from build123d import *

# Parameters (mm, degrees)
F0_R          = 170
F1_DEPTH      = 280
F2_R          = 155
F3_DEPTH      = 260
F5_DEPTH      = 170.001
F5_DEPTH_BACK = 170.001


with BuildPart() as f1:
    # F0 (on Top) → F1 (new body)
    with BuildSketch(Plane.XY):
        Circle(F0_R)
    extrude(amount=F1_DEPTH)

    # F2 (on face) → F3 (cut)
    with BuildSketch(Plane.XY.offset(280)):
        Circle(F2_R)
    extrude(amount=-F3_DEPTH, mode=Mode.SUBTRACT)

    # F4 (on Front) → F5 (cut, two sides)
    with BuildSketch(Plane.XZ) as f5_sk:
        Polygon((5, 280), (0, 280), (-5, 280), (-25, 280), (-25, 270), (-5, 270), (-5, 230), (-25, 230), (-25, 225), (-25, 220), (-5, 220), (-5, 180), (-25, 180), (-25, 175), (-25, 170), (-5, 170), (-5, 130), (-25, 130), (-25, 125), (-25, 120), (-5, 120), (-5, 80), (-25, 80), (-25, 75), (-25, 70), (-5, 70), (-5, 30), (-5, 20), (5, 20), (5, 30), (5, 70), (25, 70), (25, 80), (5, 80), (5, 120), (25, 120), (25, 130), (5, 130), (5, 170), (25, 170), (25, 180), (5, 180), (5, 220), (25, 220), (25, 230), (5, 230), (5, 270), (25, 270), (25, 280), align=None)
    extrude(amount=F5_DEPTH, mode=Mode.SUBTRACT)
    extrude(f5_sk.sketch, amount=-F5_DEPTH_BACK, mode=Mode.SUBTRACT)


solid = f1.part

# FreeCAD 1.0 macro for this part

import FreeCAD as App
import Part
import Sketcher

doc = App.newDocument("Part")
body = doc.addObject("PartDesign::Body", "Body")

# Sketch on XY plane
sketch1 = body.newObject("Sketcher::SketchObject", "Sketch")
sketch1.AttachmentSupport = (doc.getObject("XY_Plane"), [""])
sketch1.MapMode = "FlatFace"
sketch1.addGeometry(Part.Circle(App.Vector(0, 0, 0), App.Vector(0, 0, 1), 170), False)
sketch1.addConstraint([
    Sketcher.Constraint("Coincident", 0, 3, -1, 1),
    Sketcher.Constraint("Diameter", 0, 340.0),
])
pad1 = body.newObject("PartDesign::Pad", "Pad")
pad1.Profile = sketch1
pad1.Length = 280

# Sketch on XY plane
sketch2 = body.newObject("Sketcher::SketchObject", "Sketch001")
sketch2.AttachmentSupport = (doc.getObject("XY_Plane"), [""])
sketch2.MapMode = "FlatFace"
sketch2.AttachmentOffset = App.Placement(App.Vector(0, 0, 280), App.Rotation())
sketch2.addGeometry(Part.Circle(App.Vector(0, 0, 0), App.Vector(0, 0, 1), 155), False)
sketch2.addConstraint([
    Sketcher.Constraint("Coincident", 0, 3, -1, 1),
    Sketcher.Constraint("Diameter", 0, 310.0),
])
pocket1 = body.newObject("PartDesign::Pocket", "Pocket")
pocket1.Profile = sketch2
pocket1.Length = 260

# Sketch on XZ plane
sketch3 = body.newObject("Sketcher::SketchObject", "Sketch002")
sketch3.AttachmentSupport = (doc.getObject("XZ_Plane"), [""])
sketch3.MapMode = "FlatFace"
sketch3.addGeometry([
    Part.LineSegment(App.Vector(-25, 280, 0), App.Vector(-25, 270, 0)),  # 0
    Part.LineSegment(App.Vector(-25, 270, 0), App.Vector(-5, 270, 0)),  # 1
    Part.LineSegment(App.Vector(-5, 270, 0), App.Vector(-5, 230, 0)),  # 2
    Part.LineSegment(App.Vector(-5, 230, 0), App.Vector(-25, 230, 0)),  # 3
    Part.LineSegment(App.Vector(-25, 230, 0), App.Vector(-25, 220, 0)),  # 4
    Part.LineSegment(App.Vector(-25, 220, 0), App.Vector(-5, 220, 0)),  # 5
    Part.LineSegment(App.Vector(-5, 220, 0), App.Vector(-5, 180, 0)),  # 6
    Part.LineSegment(App.Vector(-5, 180, 0), App.Vector(-25, 180, 0)),  # 7
    Part.LineSegment(App.Vector(-25, 180, 0), App.Vector(-25, 170, 0)),  # 8
    Part.LineSegment(App.Vector(-25, 170, 0), App.Vector(-5, 170, 0)),  # 9
    Part.LineSegment(App.Vector(-5, 170, 0), App.Vector(-5, 130, 0)),  # 10
    Part.LineSegment(App.Vector(-5, 130, 0), App.Vector(-25, 130, 0)),  # 11
    Part.LineSegment(App.Vector(-25, 130, 0), App.Vector(-25, 120, 0)),  # 12
    Part.LineSegment(App.Vector(-25, 120, 0), App.Vector(-5, 120, 0)),  # 13
    Part.LineSegment(App.Vector(-5, 120, 0), App.Vector(-5, 80, 0)),  # 14
    Part.LineSegment(App.Vector(-5, 80, 0), App.Vector(-25, 80, 0)),  # 15
    Part.LineSegment(App.Vector(-25, 80, 0), App.Vector(-25, 70, 0)),  # 16
    Part.LineSegment(App.Vector(-25, 70, 0), App.Vector(-5, 70, 0)),  # 17
    Part.LineSegment(App.Vector(-5, 70, 0), App.Vector(-5, 20, 0)),  # 18
    Part.LineSegment(App.Vector(-5, 20, 0), App.Vector(5, 20, 0)),  # 19
    Part.LineSegment(App.Vector(5, 20, 0), App.Vector(5, 70, 0)),  # 20
    Part.LineSegment(App.Vector(5, 70, 0), App.Vector(25, 70, 0)),  # 21
    Part.LineSegment(App.Vector(25, 70, 0), App.Vector(25, 80, 0)),  # 22
    Part.LineSegment(App.Vector(25, 80, 0), App.Vector(5, 80, 0)),  # 23
    Part.LineSegment(App.Vector(5, 80, 0), App.Vector(5, 120, 0)),  # 24
    Part.LineSegment(App.Vector(5, 120, 0), App.Vector(25, 120, 0)),  # 25
    Part.LineSegment(App.Vector(25, 120, 0), App.Vector(25, 130, 0)),  # 26
    Part.LineSegment(App.Vector(25, 130, 0), App.Vector(5, 130, 0)),  # 27
    Part.LineSegment(App.Vector(5, 130, 0), App.Vector(5, 170, 0)),  # 28
    Part.LineSegment(App.Vector(5, 170, 0), App.Vector(25, 170, 0)),  # 29
    Part.LineSegment(App.Vector(25, 170, 0), App.Vector(25, 180, 0)),  # 30
    Part.LineSegment(App.Vector(25, 180, 0), App.Vector(5, 180, 0)),  # 31
    Part.LineSegment(App.Vector(5, 180, 0), App.Vector(5, 220, 0)),  # 32
    Part.LineSegment(App.Vector(5, 220, 0), App.Vector(25, 220, 0)),  # 33
    Part.LineSegment(App.Vector(25, 220, 0), App.Vector(25, 230, 0)),  # 34
    Part.LineSegment(App.Vector(25, 230, 0), App.Vector(5, 230, 0)),  # 35
    Part.LineSegment(App.Vector(5, 230, 0), App.Vector(5, 270, 0)),  # 36
    Part.LineSegment(App.Vector(5, 270, 0), App.Vector(25, 270, 0)),  # 37
    Part.LineSegment(App.Vector(25, 270, 0), App.Vector(25, 280, 0)),  # 38
    Part.LineSegment(App.Vector(25, 280, 0), App.Vector(-25, 280, 0)),  # 39
], False)
sketch3.addConstraint([
    Sketcher.Constraint("Coincident", 0, 2, 1, 1),
    Sketcher.Constraint("Coincident", 1, 2, 2, 1),
    Sketcher.Constraint("Coincident", 2, 2, 3, 1),
    Sketcher.Constraint("Coincident", 3, 2, 4, 1),
    Sketcher.Constraint("Coincident", 4, 2, 5, 1),
    Sketcher.Constraint("Coincident", 5, 2, 6, 1),
    Sketcher.Constraint("Coincident", 6, 2, 7, 1),
    Sketcher.Constraint("Coincident", 7, 2, 8, 1),
    Sketcher.Constraint("Coincident", 8, 2, 9, 1),
    Sketcher.Constraint("Coincident", 9, 2, 10, 1),
    Sketcher.Constraint("Coincident", 10, 2, 11, 1),
    Sketcher.Constraint("Coincident", 11, 2, 12, 1),
    Sketcher.Constraint("Coincident", 12, 2, 13, 1),
    Sketcher.Constraint("Coincident", 13, 2, 14, 1),
    Sketcher.Constraint("Coincident", 14, 2, 15, 1),
    Sketcher.Constraint("Coincident", 15, 2, 16, 1),
    Sketcher.Constraint("Coincident", 16, 2, 17, 1),
    Sketcher.Constraint("Coincident", 17, 2, 18, 1),
    Sketcher.Constraint("Coincident", 18, 2, 19, 1),
    Sketcher.Constraint("Coincident", 19, 2, 20, 1),
    Sketcher.Constraint("Coincident", 20, 2, 21, 1),
    Sketcher.Constraint("Coincident", 21, 2, 22, 1),
    Sketcher.Constraint("Coincident", 22, 2, 23, 1),
    Sketcher.Constraint("Coincident", 23, 2, 24, 1),
    Sketcher.Constraint("Coincident", 24, 2, 25, 1),
    Sketcher.Constraint("Coincident", 25, 2, 26, 1),
    Sketcher.Constraint("Coincident", 26, 2, 27, 1),
    Sketcher.Constraint("Coincident", 27, 2, 28, 1),
    Sketcher.Constraint("Coincident", 28, 2, 29, 1),
    Sketcher.Constraint("Coincident", 29, 2, 30, 1),
    Sketcher.Constraint("Coincident", 30, 2, 31, 1),
    Sketcher.Constraint("Coincident", 31, 2, 32, 1),
    Sketcher.Constraint("Coincident", 32, 2, 33, 1),
    Sketcher.Constraint("Coincident", 33, 2, 34, 1),
    Sketcher.Constraint("Coincident", 34, 2, 35, 1),
    Sketcher.Constraint("Coincident", 35, 2, 36, 1),
    Sketcher.Constraint("Coincident", 36, 2, 37, 1),
    Sketcher.Constraint("Coincident", 37, 2, 38, 1),
    Sketcher.Constraint("Coincident", 38, 2, 39, 1),
    Sketcher.Constraint("Coincident", 39, 2, 0, 1),
    Sketcher.Constraint("Vertical", 0),
    Sketcher.Constraint("Horizontal", 1),
    Sketcher.Constraint("Vertical", 2),
    Sketcher.Constraint("Horizontal", 3),
    Sketcher.Constraint("Vertical", 4),
    Sketcher.Constraint("Horizontal", 5),
    Sketcher.Constraint("Vertical", 6),
    Sketcher.Constraint("Horizontal", 7),
    Sketcher.Constraint("Vertical", 8),
    Sketcher.Constraint("Horizontal", 9),
    Sketcher.Constraint("Vertical", 10),
    Sketcher.Constraint("Horizontal", 11),
    Sketcher.Constraint("Vertical", 12),
    Sketcher.Constraint("Horizontal", 13),
    Sketcher.Constraint("Vertical", 14),
    Sketcher.Constraint("Horizontal", 15),
    Sketcher.Constraint("Vertical", 16),
    Sketcher.Constraint("Horizontal", 17),
    Sketcher.Constraint("Vertical", 18),
    Sketcher.Constraint("Horizontal", 19),
    Sketcher.Constraint("Vertical", 20),
    Sketcher.Constraint("Horizontal", 21),
    Sketcher.Constraint("Vertical", 22),
    Sketcher.Constraint("Horizontal", 23),
    Sketcher.Constraint("Vertical", 24),
    Sketcher.Constraint("Horizontal", 25),
    Sketcher.Constraint("Vertical", 26),
    Sketcher.Constraint("Horizontal", 27),
    Sketcher.Constraint("Vertical", 28),
    Sketcher.Constraint("Horizontal", 29),
    Sketcher.Constraint("Vertical", 30),
    Sketcher.Constraint("Horizontal", 31),
    Sketcher.Constraint("Vertical", 32),
    Sketcher.Constraint("Horizontal", 33),
    Sketcher.Constraint("Vertical", 34),
    Sketcher.Constraint("Horizontal", 35),
    Sketcher.Constraint("Vertical", 36),
    Sketcher.Constraint("Horizontal", 37),
    Sketcher.Constraint("Vertical", 38),
    Sketcher.Constraint("Horizontal", 39),
    Sketcher.Constraint("Symmetric", 17, 2, 20, 2, -2),
    Sketcher.Constraint("Symmetric", 15, 2, 22, 2, -2),
    Sketcher.Constraint("Symmetric", 13, 2, 24, 2, -2),
    Sketcher.Constraint("Symmetric", 11, 2, 26, 2, -2),
    Sketcher.Constraint("Symmetric", 9, 2, 28, 2, -2),
    Sketcher.Constraint("Symmetric", 7, 2, 30, 2, -2),
    Sketcher.Constraint("Symmetric", 5, 2, 32, 2, -2),
    Sketcher.Constraint("Symmetric", 3, 2, 34, 2, -2),
    Sketcher.Constraint("Symmetric", 1, 2, 36, 2, -2),
    Sketcher.Constraint("Vertical", 0, 2, 3, 2),
    Sketcher.Constraint("Vertical", 2, 2, 5, 2),
    Sketcher.Constraint("Vertical", 4, 2, 7, 2),
    Sketcher.Constraint("Vertical", 6, 2, 9, 2),
    Sketcher.Constraint("Vertical", 8, 2, 11, 2),
    Sketcher.Constraint("Vertical", 10, 2, 13, 2),
    Sketcher.Constraint("Vertical", 12, 2, 15, 2),
    Sketcher.Constraint("Vertical", 14, 2, 17, 2),
    Sketcher.Constraint("Vertical", 34, 2, 37, 2),
    Sketcher.Constraint("Equal", 19, 0),
    Sketcher.Constraint("Equal", 0, 4),
    Sketcher.Constraint("Equal", 2, 6),
    Sketcher.Constraint("Equal", 4, 8),
    Sketcher.Constraint("Equal", 6, 10),
    Sketcher.Constraint("Equal", 8, 12),
    Sketcher.Constraint("Equal", 10, 14),
    Sketcher.Constraint("Equal", 12, 16),
    Sketcher.Constraint("Equal", 39, 18),
    Sketcher.Constraint("DistanceX", 1, 1, 1, 2, 20.0),
    Sketcher.Constraint("DistanceX", 19, 1, 19, 2, 10.0),
    Sketcher.Constraint("DistanceY", 2, 2, 2, 1, 40.0),
    Sketcher.Constraint("DistanceY", -1, 1, 0, 2, 270.0),
])
pocket2 = body.newObject("PartDesign::Pocket", "Pocket001")
pocket2.Profile = sketch3
pocket2.Type = "ThroughAll"
pocket2.Midplane = True

doc.recompute()
